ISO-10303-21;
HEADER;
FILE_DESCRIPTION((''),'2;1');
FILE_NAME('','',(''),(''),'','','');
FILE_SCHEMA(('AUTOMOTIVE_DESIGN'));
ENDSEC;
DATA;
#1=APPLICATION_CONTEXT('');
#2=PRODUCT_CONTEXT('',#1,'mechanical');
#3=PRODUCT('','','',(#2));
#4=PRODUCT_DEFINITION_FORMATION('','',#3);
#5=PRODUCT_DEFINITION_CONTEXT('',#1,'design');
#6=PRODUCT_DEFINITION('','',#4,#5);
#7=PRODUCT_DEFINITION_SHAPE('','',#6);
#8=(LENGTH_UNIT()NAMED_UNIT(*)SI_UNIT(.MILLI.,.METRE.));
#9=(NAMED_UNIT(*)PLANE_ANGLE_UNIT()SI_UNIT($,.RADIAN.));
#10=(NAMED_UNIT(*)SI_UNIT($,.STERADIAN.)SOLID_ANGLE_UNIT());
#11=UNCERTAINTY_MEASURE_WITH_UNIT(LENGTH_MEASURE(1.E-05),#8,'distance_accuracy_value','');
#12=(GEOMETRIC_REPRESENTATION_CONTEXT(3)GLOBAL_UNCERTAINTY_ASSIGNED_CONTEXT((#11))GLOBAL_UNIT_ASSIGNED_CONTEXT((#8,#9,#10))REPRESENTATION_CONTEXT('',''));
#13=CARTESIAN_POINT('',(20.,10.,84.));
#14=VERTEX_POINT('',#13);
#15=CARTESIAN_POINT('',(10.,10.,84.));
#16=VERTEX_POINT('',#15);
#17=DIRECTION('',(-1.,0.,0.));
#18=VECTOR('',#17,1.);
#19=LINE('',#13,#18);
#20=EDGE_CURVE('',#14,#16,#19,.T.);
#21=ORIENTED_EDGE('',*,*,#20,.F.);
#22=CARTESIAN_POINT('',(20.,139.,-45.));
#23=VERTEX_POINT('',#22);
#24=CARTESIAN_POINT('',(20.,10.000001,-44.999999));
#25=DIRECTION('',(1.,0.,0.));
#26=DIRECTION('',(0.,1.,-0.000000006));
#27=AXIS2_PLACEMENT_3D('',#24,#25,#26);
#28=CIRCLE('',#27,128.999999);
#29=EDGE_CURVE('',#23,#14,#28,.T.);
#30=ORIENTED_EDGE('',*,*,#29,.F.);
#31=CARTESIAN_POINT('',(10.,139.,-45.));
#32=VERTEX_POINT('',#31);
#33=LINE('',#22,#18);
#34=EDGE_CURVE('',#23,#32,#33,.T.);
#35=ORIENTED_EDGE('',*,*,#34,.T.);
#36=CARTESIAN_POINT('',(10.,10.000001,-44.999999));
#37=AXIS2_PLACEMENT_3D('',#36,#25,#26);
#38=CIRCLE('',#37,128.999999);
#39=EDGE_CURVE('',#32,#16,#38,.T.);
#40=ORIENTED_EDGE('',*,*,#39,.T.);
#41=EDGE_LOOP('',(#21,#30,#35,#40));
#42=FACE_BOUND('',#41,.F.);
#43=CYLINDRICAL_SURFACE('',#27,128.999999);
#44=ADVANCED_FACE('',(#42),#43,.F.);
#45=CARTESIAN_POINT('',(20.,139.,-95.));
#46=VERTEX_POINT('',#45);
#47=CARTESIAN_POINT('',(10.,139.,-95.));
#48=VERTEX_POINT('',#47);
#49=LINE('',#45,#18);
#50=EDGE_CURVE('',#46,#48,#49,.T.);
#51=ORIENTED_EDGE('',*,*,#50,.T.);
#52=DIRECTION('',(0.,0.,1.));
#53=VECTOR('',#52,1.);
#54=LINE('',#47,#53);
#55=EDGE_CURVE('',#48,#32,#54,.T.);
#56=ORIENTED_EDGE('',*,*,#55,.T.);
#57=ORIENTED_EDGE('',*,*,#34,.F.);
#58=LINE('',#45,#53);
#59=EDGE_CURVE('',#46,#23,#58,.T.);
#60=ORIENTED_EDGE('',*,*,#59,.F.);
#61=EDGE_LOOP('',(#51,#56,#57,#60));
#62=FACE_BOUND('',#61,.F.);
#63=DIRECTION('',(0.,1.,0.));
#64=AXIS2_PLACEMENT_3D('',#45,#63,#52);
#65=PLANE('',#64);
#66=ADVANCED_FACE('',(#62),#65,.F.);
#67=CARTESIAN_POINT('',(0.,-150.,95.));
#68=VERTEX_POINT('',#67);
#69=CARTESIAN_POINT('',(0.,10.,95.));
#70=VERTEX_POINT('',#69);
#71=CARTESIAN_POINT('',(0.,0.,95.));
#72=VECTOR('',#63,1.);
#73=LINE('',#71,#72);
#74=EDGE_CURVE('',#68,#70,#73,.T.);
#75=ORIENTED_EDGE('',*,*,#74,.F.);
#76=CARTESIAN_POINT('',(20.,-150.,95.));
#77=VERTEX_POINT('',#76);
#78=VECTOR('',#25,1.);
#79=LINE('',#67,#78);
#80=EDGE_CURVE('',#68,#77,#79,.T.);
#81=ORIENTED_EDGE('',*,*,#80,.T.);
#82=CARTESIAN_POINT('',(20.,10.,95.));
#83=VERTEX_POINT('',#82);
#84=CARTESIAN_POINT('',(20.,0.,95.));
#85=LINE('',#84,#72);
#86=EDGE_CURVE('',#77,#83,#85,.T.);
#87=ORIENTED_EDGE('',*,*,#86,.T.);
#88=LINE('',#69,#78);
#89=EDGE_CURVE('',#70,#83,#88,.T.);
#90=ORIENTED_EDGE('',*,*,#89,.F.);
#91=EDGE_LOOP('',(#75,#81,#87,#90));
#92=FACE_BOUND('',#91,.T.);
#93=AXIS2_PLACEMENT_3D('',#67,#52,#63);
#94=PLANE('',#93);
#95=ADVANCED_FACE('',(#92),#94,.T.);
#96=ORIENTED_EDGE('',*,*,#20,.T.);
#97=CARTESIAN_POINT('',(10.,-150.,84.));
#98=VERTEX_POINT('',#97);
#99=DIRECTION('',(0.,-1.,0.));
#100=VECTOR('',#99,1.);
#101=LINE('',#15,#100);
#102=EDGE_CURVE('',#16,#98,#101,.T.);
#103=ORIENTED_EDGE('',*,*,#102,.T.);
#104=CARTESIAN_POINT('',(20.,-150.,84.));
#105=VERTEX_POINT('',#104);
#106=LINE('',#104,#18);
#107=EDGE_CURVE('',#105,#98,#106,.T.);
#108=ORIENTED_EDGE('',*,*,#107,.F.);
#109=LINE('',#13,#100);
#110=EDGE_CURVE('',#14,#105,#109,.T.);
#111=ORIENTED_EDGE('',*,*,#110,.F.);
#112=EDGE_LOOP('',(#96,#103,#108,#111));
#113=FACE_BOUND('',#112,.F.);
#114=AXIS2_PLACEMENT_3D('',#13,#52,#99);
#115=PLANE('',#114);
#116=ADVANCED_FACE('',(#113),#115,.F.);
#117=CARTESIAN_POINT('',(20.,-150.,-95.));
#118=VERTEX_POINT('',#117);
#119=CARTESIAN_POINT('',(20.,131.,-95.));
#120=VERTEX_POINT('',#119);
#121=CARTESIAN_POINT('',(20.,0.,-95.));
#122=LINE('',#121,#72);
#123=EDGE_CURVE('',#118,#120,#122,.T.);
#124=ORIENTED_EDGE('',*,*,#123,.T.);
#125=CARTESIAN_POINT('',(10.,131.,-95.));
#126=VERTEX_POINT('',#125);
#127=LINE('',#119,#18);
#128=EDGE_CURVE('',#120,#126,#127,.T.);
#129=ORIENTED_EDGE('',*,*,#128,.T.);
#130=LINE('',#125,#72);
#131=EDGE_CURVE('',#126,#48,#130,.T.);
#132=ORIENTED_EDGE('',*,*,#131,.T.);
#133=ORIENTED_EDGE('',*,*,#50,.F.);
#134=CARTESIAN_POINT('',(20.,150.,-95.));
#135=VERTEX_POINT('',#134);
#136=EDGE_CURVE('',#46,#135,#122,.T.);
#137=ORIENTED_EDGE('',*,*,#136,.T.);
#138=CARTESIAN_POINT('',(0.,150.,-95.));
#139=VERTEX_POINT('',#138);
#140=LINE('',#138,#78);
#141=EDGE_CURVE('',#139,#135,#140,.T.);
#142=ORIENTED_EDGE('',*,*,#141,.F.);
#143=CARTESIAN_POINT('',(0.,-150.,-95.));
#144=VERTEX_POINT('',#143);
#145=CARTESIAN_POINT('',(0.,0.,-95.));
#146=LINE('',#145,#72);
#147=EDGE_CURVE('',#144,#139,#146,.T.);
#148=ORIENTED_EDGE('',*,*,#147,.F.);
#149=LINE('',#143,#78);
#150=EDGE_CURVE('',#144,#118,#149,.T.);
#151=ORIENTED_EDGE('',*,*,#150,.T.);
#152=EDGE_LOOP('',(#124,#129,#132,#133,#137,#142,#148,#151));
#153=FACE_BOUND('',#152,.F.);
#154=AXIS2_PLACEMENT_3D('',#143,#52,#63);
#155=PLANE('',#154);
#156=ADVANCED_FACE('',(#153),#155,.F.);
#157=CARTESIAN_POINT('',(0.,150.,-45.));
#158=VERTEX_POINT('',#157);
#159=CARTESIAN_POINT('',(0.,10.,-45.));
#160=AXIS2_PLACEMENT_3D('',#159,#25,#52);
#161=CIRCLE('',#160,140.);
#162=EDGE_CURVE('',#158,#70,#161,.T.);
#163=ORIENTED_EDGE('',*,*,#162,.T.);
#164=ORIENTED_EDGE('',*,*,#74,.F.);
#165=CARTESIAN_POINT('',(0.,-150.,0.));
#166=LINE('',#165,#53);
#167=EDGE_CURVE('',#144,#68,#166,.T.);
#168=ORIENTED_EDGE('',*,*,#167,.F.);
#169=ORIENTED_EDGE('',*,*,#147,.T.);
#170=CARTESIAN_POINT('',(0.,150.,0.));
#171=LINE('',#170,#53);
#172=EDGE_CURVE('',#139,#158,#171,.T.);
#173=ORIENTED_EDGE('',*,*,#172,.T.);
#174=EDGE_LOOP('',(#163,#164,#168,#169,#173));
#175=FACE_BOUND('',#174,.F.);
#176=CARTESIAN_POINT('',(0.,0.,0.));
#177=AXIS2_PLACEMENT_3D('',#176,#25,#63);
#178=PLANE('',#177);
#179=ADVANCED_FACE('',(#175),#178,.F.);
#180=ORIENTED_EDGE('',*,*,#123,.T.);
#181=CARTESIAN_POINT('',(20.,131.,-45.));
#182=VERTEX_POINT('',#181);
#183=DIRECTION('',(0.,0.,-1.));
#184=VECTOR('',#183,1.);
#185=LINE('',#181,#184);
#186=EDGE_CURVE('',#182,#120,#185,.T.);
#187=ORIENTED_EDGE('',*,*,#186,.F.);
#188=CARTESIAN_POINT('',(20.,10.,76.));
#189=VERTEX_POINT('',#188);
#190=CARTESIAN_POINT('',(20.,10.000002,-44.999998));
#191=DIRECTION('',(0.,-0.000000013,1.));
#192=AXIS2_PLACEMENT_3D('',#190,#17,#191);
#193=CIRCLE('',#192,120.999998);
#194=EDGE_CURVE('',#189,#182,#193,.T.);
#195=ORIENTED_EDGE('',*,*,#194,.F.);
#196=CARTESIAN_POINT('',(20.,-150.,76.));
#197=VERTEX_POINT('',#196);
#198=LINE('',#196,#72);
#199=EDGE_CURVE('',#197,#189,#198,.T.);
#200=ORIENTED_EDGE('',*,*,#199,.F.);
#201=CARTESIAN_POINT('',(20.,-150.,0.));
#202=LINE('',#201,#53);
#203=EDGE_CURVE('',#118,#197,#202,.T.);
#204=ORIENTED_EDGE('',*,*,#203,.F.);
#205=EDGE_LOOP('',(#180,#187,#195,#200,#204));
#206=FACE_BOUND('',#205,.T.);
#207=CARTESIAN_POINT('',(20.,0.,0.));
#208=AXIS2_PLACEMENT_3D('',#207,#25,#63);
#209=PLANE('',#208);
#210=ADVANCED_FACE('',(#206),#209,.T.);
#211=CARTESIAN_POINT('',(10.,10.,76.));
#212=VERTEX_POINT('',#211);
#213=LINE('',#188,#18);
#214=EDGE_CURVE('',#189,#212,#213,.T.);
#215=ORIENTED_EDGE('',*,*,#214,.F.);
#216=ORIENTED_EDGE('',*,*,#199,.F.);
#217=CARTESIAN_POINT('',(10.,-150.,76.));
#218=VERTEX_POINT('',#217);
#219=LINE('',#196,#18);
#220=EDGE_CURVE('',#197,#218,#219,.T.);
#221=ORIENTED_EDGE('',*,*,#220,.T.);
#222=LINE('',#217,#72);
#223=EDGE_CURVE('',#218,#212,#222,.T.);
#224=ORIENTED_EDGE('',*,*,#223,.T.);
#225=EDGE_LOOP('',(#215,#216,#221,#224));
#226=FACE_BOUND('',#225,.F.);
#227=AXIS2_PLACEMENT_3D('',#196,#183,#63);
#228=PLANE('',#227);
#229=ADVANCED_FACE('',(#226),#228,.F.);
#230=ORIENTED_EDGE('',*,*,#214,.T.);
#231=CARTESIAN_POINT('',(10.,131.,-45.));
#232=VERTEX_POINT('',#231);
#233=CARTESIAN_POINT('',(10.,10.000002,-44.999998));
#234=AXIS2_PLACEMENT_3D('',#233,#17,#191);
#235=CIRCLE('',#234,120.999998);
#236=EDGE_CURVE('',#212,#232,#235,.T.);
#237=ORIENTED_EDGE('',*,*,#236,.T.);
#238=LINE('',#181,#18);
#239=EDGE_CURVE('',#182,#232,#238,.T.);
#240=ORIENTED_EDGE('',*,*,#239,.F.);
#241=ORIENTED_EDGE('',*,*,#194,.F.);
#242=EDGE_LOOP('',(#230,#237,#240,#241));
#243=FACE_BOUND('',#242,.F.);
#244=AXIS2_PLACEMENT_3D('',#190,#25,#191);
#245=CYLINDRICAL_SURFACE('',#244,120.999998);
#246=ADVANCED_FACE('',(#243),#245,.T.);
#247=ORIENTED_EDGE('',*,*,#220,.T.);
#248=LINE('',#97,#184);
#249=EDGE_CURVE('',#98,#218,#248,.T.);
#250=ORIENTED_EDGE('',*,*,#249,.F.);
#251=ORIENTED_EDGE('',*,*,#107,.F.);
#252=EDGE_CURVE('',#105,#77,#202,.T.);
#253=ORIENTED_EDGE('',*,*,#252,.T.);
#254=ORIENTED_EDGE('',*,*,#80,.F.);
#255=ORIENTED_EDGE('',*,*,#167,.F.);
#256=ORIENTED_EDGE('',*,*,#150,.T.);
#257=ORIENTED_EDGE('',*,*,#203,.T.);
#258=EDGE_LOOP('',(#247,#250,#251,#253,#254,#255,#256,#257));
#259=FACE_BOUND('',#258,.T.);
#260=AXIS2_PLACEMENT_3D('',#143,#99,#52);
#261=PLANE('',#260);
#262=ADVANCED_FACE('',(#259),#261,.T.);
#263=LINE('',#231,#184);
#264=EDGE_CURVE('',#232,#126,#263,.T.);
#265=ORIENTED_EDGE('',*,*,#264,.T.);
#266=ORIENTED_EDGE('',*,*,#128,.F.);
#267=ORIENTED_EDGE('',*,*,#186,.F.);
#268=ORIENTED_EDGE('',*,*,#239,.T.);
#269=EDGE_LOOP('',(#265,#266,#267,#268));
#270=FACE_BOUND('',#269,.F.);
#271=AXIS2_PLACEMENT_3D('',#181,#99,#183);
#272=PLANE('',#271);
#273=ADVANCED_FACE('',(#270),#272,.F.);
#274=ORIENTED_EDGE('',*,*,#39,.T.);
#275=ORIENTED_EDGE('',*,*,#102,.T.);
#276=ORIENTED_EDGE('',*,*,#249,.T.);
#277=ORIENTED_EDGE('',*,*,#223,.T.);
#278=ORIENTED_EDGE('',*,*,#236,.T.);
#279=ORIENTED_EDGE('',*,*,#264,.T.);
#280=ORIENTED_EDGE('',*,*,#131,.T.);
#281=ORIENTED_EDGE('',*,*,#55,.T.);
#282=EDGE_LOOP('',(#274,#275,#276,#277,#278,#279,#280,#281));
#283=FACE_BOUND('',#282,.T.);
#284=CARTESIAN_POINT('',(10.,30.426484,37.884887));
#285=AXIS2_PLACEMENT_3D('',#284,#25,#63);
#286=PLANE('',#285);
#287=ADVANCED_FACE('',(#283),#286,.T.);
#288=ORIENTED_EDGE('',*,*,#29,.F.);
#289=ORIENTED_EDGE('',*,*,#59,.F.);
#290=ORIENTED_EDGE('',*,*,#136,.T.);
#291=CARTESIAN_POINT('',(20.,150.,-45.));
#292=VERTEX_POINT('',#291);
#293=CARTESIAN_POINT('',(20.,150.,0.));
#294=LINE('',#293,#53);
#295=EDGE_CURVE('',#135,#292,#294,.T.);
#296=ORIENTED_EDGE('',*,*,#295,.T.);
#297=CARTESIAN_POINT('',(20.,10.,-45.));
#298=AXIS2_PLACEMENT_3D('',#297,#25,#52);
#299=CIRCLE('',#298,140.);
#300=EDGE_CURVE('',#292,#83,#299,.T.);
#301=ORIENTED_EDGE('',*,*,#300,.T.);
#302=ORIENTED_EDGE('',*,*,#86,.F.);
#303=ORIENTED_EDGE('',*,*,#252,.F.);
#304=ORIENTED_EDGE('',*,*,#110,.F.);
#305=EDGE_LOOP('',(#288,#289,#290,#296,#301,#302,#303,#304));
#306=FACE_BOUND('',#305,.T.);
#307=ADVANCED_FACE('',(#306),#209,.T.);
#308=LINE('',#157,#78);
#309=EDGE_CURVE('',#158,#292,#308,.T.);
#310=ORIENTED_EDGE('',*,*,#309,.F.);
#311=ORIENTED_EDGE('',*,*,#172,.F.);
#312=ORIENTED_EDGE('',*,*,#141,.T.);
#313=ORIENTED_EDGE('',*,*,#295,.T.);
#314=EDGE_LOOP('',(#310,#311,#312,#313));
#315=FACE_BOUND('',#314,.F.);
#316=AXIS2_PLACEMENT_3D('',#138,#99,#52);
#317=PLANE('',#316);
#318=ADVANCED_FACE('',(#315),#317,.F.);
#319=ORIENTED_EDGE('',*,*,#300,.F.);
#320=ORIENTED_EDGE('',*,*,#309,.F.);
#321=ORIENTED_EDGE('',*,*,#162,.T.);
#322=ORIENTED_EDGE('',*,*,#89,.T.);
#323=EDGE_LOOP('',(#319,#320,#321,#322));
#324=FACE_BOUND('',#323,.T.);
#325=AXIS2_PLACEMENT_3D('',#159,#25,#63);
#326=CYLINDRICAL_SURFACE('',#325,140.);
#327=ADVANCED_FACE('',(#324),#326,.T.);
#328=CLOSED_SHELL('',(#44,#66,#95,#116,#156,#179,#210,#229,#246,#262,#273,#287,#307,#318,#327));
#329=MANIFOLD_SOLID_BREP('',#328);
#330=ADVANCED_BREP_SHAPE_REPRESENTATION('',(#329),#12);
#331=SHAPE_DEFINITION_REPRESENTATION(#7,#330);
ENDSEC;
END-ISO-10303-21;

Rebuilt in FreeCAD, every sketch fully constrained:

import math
import FreeCAD as App
import Part
import Sketcher

V = App.Vector


def edges_at(feature, points):
    """Names of the edges that pass closest to the given points."""
    edges = feature.Shape.Edges
    near = lambda p: min(range(len(edges)), key=lambda i: edges[i].distToShape(Part.Vertex(*p))[0])
    return sorted({f"Edge{near(p) + 1}" for p in points})


def add_polygon(sketch, points):
    """Adds a closed chain of lines whose ends are joined by coincident constraints."""
    first, n = sketch.GeometryCount, len(points)
    for a, b in zip(points, points[1:] + points[:1]):
        sketch.addGeometry(Part.LineSegment(App.Vector(*a, 0), App.Vector(*b, 0)), False)
    for i in range(n):
        sketch.addConstraint(Sketcher.Constraint("Coincident", first + i, 2, first + (i + 1) % n, 1))

doc = App.newDocument("Part")
params = doc.addObject("Spreadsheet::Sheet", "Params")
for row, (alias, value) in enumerate([
    ("sketch1_width", "300 mm"),
    ("sketch1_height", "190 mm"),
    ("pad1_length", "20 mm"),
    ("fillet_radius", "140 mm"),
    ("sketch2_radius", "128.999999 mm"),
    ("sketch2_radius2", "120.999998 mm"),
    ("sketch2_width", "160 mm"),
    ("sketch2_height", "50 mm"),
    ("pocket1_length", "10 mm"),
], start=1):
    params.set(f"A{row}", alias)
    params.set(f"B{row}", "=" + value)
    params.setAlias(f"B{row}", alias)

body = doc.addObject("PartDesign::Body", "Body")

# Sketch on YZ plane
sketch1 = body.newObject("Sketcher::SketchObject", "Sketch")
sketch1.AttachmentSupport = (doc.getObject("YZ_Plane"), [""])
sketch1.MapMode = "FlatFace"
add_polygon(sketch1, [(-150, 95), (-150, -95), (150, -95), (150, 95)])  # lines 0-3
sketch1.addConstraint(Sketcher.Constraint("Vertical", 0))
sketch1.addConstraint(Sketcher.Constraint("Horizontal", 1))
sketch1.addConstraint(Sketcher.Constraint("Vertical", 2))
sketch1.addConstraint(Sketcher.Constraint("Horizontal", 3))
sketch1.addConstraint(Sketcher.Constraint("Symmetric", 0, 2, 2, 2, -1, 1))
sketch1.addConstraint(Sketcher.Constraint("DistanceX", 1, 1, 1, 2, 300.0))
sketch1.addConstraint(Sketcher.Constraint("DistanceY", 0, 2, 0, 1, 190.0))
sketch1.setExpression("Constraints[9]", "Params.sketch1_width")
sketch1.setExpression("Constraints[10]", "Params.sketch1_height")
pad1 = body.newObject("PartDesign::Pad", "Pad")
pad1.Profile = sketch1
pad1.setExpression("Length", "Params.pad1_length")
doc.recompute()

fillet = body.newObject("PartDesign::Fillet", "Fillet")
fillet.Base = (pad1, edges_at(pad1, [(10, 150, 95)]))
fillet.setExpression("Radius", "Params.fillet_radius")

# Sketch on YZ plane
sketch2 = body.newObject("Sketcher::SketchObject", "Sketch001")
sketch2.AttachmentSupport = (doc.getObject("YZ_Plane"), [""])
sketch2.MapMode = "FlatFace"
sketch2.AttachmentOffset = App.Placement(V(0, 0, 20), App.Rotation())
sketch2.addGeometry(Part.LineSegment(V(131, -95, 0), V(139, -95, 0)), False)
sketch2.addGeometry(Part.LineSegment(V(139, -95, 0), V(139, -45, 0)), False)
sketch2.addGeometry(Part.ArcOfCircle(Part.Circle(V(10.000001, -44.999999, 0), V(0, 0, 1), 128.999999), math.radians(0), math.radians(90)), False)
sketch2.addGeometry(Part.LineSegment(V(10, 84, 0), V(-150, 84, 0)), False)
sketch2.addGeometry(Part.LineSegment(V(-150, 84, 0), V(-150, 76, 0)), False)
sketch2.addGeometry(Part.LineSegment(V(-150, 76, 0), V(10, 76, 0)), False)
sketch2.addGeometry(Part.ArcOfCircle(Part.Circle(V(10.000002, -44.999998, 0), V(0, 0, 1), 120.999998), math.radians(-0.000001), math.radians(90.000001)), False)
sketch2.addGeometry(Part.LineSegment(V(131, -45, 0), V(131, -95, 0)), False)
sketch2.addConstraint(Sketcher.Constraint("Coincident", 0, 2, 1, 1))
sketch2.addConstraint(Sketcher.Constraint("Tangent", 1, 2, 2, 1))
sketch2.addConstraint(Sketcher.Constraint("Tangent", 2, 2, 3, 1))
sketch2.addConstraint(Sketcher.Constraint("Coincident", 3, 2, 4, 1))
sketch2.addConstraint(Sketcher.Constraint("Coincident", 4, 2, 5, 1))
sketch2.addConstraint(Sketcher.Constraint("Tangent", 5, 2, 6, 2))
sketch2.addConstraint(Sketcher.Constraint("Tangent", 6, 1, 7, 1))
sketch2.addConstraint(Sketcher.Constraint("Coincident", 7, 2, 0, 1))
sketch2.addConstraint(Sketcher.Constraint("Horizontal", 0))
sketch2.addConstraint(Sketcher.Constraint("Vertical", 1))
sketch2.addConstraint(Sketcher.Constraint("Horizontal", 3))
sketch2.addConstraint(Sketcher.Constraint("Vertical", 4))
sketch2.addConstraint(Sketcher.Constraint("Horizontal", 5))
sketch2.addConstraint(Sketcher.Constraint("Vertical", 7))
sketch2.addConstraint(Sketcher.Constraint("Coincident", 6, 3, 2, 3))
sketch2.addConstraint(Sketcher.Constraint("Radius", 2, 128.999999))
sketch2.addConstraint(Sketcher.Constraint("Radius", 6, 120.999998))
sketch2.addConstraint(Sketcher.Constraint("DistanceX", 3, 2, 3, 1, 160.0))
sketch2.addConstraint(Sketcher.Constraint("DistanceY", 1, 1, 1, 2, 50.0))
sketch2.addConstraint(Sketcher.Constraint("DistanceX", -1, 1, 2, 3, 10.000001))
sketch2.addConstraint(Sketcher.Constraint("DistanceY", 2, 3, -1, 1, 44.999999))
sketch2.setExpression("Constraints[15]", "Params.sketch2_radius")
sketch2.setExpression("Constraints[16]", "Params.sketch2_radius2")
sketch2.setExpression("Constraints[17]", "Params.sketch2_width")
sketch2.setExpression("Constraints[18]", "Params.sketch2_height")
pocket1 = body.newObject("PartDesign::Pocket", "Pocket")
pocket1.Profile = sketch2
pocket1.setExpression("Length", "Params.pocket1_length")

doc.recompute()
